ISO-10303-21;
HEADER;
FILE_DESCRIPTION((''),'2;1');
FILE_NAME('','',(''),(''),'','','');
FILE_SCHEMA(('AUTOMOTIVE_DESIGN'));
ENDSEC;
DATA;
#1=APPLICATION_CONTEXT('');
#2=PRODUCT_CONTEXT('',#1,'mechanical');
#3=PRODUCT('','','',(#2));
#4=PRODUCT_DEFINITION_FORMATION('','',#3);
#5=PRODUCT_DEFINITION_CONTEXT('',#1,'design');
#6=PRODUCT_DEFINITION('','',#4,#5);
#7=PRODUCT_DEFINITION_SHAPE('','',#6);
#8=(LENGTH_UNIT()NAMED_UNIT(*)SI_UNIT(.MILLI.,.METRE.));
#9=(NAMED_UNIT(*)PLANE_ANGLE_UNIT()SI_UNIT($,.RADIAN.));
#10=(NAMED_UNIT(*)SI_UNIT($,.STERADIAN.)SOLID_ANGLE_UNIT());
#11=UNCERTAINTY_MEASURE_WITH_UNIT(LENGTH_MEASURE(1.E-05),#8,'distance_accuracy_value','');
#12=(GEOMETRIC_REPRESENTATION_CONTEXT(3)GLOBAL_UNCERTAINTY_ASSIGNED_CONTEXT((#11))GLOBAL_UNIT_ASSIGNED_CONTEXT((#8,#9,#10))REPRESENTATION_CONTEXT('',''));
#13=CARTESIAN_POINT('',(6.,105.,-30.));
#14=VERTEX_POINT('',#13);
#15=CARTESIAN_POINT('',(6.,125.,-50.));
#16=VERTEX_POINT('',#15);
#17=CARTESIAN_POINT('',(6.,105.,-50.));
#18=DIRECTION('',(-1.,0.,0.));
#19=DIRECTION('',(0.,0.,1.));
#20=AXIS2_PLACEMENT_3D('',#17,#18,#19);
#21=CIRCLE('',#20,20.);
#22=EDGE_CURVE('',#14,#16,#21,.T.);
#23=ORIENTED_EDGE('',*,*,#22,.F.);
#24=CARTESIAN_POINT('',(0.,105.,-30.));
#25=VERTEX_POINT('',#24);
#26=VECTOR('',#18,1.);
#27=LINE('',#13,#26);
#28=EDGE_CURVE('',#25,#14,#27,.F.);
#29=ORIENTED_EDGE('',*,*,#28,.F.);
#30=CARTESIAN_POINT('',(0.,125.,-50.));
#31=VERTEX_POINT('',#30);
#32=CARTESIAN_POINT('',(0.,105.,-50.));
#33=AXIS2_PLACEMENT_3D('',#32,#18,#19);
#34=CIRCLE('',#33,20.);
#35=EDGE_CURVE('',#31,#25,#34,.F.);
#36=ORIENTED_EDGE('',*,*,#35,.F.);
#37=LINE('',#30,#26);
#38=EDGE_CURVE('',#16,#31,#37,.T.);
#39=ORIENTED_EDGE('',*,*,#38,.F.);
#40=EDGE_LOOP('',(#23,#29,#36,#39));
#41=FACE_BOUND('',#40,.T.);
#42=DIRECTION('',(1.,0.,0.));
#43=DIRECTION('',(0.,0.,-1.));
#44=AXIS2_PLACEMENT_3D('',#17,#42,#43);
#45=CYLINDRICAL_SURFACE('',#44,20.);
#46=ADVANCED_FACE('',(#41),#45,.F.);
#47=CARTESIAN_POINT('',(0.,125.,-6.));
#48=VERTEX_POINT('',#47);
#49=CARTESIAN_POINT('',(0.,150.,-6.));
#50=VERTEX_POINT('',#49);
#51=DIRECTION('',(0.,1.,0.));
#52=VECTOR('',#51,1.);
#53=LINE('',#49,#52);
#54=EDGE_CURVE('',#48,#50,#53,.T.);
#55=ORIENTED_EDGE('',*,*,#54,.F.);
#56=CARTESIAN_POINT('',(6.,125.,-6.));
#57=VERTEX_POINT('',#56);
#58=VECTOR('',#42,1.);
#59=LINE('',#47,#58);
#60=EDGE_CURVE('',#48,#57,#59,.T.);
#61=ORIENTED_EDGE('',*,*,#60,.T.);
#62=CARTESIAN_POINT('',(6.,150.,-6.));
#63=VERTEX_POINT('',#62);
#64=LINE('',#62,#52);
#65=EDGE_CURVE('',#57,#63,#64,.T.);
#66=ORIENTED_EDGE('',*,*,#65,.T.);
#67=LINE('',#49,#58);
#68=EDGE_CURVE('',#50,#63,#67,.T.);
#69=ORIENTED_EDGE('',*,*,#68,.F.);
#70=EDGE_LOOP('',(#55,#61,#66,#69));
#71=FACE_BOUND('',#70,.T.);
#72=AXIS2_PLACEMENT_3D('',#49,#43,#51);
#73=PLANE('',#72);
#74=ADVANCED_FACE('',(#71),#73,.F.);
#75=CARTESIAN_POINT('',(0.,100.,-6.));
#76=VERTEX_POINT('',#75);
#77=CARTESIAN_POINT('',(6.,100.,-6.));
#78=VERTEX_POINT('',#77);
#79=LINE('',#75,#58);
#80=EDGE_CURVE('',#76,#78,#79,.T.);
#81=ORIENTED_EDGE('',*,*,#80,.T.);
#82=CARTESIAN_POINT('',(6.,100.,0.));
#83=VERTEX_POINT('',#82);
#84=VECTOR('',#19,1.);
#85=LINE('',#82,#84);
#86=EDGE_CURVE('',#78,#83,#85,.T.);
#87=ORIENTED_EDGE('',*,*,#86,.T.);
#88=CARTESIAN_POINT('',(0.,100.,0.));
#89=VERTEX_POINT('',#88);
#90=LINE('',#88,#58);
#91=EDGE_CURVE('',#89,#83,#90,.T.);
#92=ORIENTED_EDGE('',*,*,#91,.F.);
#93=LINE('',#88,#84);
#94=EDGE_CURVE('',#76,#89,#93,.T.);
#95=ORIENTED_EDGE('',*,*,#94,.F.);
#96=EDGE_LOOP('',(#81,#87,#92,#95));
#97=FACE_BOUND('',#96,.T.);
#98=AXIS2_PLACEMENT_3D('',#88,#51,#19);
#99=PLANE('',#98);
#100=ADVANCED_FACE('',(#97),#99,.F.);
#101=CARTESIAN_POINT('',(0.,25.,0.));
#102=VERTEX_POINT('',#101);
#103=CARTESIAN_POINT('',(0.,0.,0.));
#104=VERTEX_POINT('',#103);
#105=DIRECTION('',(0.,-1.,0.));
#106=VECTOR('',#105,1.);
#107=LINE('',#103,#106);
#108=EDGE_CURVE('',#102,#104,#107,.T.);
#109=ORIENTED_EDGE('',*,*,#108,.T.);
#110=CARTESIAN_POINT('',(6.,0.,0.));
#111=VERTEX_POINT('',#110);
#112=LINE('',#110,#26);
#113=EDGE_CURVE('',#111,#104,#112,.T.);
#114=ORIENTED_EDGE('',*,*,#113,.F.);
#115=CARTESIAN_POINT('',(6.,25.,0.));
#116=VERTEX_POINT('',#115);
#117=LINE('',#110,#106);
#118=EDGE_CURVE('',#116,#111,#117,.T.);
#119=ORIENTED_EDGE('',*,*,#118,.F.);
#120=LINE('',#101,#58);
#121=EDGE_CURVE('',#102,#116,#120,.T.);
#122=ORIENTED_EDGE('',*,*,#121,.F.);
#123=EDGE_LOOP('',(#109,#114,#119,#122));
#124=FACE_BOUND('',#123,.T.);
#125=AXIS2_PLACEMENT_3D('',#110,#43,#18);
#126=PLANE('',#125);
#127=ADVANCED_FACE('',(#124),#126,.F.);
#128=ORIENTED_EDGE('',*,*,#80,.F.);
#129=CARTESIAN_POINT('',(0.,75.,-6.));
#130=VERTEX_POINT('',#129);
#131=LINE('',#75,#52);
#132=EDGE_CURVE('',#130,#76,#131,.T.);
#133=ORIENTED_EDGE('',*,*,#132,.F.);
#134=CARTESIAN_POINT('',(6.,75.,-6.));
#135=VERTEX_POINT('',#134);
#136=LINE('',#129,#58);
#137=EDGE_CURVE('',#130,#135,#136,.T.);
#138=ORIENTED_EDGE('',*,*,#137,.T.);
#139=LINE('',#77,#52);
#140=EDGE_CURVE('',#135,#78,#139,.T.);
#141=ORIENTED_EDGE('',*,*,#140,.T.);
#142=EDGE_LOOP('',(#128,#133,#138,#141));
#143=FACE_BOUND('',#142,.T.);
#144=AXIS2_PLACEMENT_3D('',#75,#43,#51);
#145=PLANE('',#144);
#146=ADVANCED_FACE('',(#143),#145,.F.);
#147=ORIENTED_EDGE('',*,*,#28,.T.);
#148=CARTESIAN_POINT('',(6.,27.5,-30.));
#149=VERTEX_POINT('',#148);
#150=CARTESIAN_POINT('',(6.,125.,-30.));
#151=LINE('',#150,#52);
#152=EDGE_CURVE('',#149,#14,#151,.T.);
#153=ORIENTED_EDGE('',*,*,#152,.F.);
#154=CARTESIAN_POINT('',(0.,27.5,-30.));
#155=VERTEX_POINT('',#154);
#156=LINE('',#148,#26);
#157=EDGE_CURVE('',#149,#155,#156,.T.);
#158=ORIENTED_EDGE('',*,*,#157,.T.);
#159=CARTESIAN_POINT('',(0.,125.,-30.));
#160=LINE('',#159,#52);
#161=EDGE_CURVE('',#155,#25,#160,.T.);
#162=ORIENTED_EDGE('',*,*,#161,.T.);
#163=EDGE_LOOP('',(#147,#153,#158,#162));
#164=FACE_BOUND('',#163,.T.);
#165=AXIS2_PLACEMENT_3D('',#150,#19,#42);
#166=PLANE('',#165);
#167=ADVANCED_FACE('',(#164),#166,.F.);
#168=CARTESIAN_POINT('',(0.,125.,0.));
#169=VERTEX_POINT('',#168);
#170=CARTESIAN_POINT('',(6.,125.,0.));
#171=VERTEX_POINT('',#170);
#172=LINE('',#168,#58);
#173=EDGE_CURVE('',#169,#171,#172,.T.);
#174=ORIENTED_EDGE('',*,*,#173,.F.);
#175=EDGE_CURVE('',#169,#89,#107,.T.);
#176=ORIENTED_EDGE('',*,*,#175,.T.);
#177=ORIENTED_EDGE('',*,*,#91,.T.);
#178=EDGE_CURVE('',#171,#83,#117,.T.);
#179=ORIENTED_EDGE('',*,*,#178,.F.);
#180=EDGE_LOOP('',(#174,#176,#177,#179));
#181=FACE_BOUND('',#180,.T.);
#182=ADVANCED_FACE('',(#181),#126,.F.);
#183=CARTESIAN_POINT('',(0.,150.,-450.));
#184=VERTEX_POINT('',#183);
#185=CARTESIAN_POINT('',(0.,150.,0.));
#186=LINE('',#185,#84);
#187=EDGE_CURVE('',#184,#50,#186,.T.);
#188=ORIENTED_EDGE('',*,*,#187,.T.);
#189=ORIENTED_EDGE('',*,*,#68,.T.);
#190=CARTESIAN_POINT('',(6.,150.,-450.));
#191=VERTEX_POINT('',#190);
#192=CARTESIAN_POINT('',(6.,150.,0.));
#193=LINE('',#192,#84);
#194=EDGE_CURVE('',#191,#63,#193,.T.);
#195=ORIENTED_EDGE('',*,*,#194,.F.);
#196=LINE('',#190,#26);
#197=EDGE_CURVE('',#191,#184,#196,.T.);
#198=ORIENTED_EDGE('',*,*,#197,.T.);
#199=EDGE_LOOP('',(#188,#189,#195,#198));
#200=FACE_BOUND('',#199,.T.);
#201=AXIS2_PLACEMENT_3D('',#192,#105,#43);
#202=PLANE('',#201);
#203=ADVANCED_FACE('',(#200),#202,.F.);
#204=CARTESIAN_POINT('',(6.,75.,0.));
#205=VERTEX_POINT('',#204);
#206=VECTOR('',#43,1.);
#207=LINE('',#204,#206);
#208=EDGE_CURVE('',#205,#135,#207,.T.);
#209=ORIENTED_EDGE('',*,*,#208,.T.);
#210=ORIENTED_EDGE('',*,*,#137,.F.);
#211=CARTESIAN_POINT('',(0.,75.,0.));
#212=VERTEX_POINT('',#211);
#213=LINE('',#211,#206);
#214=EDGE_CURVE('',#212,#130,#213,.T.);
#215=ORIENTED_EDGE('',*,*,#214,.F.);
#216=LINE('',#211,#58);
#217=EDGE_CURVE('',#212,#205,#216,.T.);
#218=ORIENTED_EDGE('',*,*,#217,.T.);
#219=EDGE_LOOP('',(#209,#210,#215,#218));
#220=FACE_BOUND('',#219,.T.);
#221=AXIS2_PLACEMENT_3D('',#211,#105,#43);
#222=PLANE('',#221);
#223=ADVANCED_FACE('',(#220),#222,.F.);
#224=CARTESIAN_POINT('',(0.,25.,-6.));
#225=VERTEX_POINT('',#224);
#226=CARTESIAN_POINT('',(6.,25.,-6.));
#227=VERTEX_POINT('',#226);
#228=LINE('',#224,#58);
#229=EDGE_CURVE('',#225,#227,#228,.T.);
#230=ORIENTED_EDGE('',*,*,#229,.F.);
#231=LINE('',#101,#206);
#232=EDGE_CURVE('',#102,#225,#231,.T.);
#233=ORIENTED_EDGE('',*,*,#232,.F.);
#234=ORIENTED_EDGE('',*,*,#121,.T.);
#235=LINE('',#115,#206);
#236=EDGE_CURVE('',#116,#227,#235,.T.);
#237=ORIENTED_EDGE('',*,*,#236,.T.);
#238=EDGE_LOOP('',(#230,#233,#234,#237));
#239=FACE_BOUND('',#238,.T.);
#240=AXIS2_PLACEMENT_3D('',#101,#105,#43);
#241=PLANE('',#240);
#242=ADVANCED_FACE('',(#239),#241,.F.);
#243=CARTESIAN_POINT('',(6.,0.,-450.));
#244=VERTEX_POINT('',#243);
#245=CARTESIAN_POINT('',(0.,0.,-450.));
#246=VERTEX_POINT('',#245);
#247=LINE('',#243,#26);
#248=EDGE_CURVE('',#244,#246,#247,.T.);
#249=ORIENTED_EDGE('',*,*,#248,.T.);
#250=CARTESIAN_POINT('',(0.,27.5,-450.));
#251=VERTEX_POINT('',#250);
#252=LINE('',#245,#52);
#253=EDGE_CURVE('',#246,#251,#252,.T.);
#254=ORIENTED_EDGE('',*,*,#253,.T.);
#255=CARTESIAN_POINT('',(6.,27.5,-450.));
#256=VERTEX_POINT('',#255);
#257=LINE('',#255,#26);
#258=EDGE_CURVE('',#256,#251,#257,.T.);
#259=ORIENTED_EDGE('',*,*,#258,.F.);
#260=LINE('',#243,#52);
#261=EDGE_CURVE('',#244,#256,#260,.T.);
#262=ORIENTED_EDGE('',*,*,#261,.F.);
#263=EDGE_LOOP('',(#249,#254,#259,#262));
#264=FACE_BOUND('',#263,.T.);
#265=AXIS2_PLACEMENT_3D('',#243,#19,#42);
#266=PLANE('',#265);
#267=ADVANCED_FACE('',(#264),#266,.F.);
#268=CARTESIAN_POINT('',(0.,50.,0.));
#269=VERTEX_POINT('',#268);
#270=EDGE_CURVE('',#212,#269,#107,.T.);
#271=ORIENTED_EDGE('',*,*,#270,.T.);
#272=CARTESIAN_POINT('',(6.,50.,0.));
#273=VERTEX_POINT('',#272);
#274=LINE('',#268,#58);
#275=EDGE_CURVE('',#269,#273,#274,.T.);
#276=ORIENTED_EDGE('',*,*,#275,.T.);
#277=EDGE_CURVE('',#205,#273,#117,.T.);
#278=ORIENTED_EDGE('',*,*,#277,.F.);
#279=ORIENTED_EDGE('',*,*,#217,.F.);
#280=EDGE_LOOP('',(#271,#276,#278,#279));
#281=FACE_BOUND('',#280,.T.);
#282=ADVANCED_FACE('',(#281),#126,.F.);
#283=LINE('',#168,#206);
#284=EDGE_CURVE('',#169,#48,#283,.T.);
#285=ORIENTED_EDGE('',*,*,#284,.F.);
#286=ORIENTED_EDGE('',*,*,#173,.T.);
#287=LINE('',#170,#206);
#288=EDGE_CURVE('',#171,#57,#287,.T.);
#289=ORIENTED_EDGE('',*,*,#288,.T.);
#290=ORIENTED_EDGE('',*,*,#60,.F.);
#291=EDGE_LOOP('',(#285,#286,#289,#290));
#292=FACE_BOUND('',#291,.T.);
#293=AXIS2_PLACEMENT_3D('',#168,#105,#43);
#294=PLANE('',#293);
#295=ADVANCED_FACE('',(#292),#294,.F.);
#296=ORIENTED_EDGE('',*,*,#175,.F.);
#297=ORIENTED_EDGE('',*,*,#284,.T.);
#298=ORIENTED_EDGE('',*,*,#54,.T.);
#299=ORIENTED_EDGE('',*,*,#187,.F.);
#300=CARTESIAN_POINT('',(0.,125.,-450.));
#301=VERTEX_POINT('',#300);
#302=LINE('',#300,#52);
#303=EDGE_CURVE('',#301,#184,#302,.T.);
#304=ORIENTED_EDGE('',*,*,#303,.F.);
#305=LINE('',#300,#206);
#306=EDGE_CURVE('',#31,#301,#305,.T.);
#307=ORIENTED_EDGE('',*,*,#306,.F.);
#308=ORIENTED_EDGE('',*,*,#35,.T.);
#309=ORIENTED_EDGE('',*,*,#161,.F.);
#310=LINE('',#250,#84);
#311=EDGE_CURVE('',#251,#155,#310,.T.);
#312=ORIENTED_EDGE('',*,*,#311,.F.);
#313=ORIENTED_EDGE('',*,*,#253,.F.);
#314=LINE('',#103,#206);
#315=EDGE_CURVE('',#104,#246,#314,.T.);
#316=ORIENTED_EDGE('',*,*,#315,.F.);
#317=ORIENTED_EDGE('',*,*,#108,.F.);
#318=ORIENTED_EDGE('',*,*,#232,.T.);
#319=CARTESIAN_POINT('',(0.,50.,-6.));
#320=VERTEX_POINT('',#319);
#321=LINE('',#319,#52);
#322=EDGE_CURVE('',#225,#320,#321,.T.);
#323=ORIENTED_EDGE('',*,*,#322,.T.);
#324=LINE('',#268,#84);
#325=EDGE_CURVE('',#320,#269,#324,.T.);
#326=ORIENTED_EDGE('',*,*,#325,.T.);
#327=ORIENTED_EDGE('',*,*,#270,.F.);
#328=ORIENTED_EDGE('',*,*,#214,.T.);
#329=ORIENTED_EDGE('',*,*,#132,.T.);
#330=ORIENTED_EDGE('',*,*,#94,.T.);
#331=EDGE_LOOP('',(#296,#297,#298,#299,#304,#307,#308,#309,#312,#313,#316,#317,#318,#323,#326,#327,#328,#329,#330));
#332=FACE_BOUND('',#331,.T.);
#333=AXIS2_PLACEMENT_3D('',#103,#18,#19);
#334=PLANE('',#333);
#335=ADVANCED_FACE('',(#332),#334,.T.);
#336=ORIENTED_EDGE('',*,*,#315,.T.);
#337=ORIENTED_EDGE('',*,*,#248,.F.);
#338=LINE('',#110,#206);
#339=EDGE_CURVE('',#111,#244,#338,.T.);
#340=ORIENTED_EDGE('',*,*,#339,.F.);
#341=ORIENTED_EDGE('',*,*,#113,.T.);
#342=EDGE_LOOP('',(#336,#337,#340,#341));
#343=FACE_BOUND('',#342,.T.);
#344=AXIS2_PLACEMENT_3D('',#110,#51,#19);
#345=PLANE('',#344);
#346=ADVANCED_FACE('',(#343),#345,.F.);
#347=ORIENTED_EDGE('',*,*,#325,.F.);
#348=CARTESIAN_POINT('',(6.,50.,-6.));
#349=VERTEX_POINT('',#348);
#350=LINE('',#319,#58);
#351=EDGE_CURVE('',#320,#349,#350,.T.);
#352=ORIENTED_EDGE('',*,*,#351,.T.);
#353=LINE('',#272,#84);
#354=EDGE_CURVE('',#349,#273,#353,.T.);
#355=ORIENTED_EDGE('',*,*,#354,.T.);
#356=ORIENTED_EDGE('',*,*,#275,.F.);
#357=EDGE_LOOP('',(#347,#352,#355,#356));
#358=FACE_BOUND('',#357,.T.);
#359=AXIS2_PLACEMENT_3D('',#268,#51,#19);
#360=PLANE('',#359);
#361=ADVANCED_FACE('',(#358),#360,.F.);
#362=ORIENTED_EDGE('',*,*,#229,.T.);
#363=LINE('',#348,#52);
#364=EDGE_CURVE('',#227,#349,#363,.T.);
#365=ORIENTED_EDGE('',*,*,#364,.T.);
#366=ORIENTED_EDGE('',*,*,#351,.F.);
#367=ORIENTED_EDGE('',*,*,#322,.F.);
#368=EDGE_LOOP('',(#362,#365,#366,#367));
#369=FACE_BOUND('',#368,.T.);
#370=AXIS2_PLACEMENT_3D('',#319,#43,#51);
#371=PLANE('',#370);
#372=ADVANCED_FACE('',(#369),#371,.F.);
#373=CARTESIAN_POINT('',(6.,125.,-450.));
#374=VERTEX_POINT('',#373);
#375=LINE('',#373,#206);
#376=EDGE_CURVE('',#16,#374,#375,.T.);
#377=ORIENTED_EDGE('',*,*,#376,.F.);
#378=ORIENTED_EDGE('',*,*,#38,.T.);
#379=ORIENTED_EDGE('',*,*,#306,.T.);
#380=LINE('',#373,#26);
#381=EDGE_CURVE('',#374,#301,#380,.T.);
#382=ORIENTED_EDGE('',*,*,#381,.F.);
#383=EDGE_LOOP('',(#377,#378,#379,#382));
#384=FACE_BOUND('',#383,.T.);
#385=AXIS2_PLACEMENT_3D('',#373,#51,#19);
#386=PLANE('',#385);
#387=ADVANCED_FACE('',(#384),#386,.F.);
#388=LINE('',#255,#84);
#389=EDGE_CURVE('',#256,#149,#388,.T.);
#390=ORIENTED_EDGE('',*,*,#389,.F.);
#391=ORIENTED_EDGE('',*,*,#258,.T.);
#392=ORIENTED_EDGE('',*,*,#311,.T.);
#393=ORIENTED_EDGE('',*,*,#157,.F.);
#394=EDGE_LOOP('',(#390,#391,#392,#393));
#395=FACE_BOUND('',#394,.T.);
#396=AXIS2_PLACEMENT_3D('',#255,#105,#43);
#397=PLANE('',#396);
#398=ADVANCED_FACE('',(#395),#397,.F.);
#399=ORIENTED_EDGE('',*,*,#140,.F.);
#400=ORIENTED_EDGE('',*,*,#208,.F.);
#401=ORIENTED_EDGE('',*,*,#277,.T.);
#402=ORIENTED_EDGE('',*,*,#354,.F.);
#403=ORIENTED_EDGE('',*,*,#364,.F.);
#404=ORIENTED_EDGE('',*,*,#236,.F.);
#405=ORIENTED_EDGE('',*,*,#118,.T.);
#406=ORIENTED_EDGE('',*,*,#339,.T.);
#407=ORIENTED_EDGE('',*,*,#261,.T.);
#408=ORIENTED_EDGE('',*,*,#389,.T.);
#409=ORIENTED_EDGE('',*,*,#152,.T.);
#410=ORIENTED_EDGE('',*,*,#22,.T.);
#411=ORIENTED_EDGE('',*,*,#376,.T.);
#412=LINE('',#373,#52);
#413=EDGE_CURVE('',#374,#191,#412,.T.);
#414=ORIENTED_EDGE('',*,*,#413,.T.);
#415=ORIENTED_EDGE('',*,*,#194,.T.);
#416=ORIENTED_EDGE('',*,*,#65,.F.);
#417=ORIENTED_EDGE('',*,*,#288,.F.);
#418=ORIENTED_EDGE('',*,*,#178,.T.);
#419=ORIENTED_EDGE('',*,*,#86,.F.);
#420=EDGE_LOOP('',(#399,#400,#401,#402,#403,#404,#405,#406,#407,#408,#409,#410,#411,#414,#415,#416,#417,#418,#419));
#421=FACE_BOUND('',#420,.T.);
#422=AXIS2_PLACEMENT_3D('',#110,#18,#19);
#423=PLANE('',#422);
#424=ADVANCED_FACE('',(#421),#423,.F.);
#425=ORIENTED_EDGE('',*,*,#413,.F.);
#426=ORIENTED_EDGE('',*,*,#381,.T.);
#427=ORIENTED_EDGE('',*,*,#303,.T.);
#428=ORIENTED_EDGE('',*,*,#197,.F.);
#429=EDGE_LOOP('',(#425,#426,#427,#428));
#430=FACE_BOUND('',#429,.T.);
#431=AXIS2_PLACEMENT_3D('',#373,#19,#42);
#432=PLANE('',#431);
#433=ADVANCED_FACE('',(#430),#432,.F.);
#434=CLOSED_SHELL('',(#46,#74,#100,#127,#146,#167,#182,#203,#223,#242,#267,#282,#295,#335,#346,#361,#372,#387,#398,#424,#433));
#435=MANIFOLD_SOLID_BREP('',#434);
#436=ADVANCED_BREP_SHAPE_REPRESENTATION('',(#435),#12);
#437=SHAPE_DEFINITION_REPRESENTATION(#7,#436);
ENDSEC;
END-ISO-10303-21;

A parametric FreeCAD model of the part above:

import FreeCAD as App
import Part
import Sketcher
from FreeCAD import Vector


def edges_at(feature, points):
    """Names of the edges that pass closest to the given points."""
    edges = feature.Shape.Edges
    near = lambda p: min(range(len(edges)), key=lambda i: edges[i].distToShape(Part.Vertex(*p))[0])
    return sorted({f"Edge{near(p) + 1}" for p in points})


def add_polygon(sketch, points):
    """Adds a closed chain of lines whose ends are joined by coincident constraints."""
    first, n = sketch.GeometryCount, len(points)
    for a, b in zip(points, points[1:] + points[:1]):
        sketch.addGeometry(Part.LineSegment(App.Vector(*a, 0), App.Vector(*b, 0)), False)
    for i in range(n):
        sketch.addConstraint(Sketcher.Constraint("Coincident", first + i, 2, first + (i + 1) % n, 1))

doc = App.newDocument("Part")
body = doc.addObject("PartDesign::Body", "Body")

# Sketch on YZ plane
sketch1 = body.newObject("Sketcher::SketchObject", "Sketch")
sketch1.AttachmentSupport = (doc.getObject("YZ_Plane"), [""])
sketch1.MapMode = "FlatFace"
add_polygon(sketch1, [(125, -450), (150, -450), (150, 0), (0, 0), (0, -450), (28, -450), (28, -30), (125, -30)])  # lines 0-7
sketch1.addConstraint([
    Sketcher.Constraint("Horizontal", 0),
    Sketcher.Constraint("Vertical", 1),
    Sketcher.Constraint("Horizontal", 2),
    Sketcher.Constraint("Vertical", 3),
    Sketcher.Constraint("Horizontal", 4),
    Sketcher.Constraint("Vertical", 5),
    Sketcher.Constraint("Horizontal", 6),
    Sketcher.Constraint("Vertical", 7),
    Sketcher.Constraint("Coincident", 2, 2, -1, 1),
    Sketcher.Constraint("Horizontal", 0, 2, 3, 2),
    Sketcher.Constraint("DistanceX", 0, 1, 0, 2, 25.0),
    Sketcher.Constraint("DistanceX", 2, 2, 2, 1, 150.0),
    Sketcher.Constraint("DistanceY", 1, 1, 1, 2, 450.0),
    Sketcher.Constraint("DistanceY", 5, 1, 5, 2, 420.0),
    Sketcher.Constraint("DistanceX", 4, 1, 4, 2, 27.5),
])
pad1 = body.newObject("PartDesign::Pad", "Pad")
pad1.Profile = sketch1
pad1.Length = 6

# Sketch on YZ plane
sketch2 = body.newObject("Sketcher::SketchObject", "Sketch001")
sketch2.AttachmentSupport = (doc.getObject("YZ_Plane"), [""])
sketch2.MapMode = "FlatFace"
sketch2.AttachmentOffset = App.Placement(Vector(0, 0, 6), App.Rotation())
add_polygon(sketch2, [(150, 0), (125, 0), (125, -6), (150, -6)])  # lines 0-3
sketch2.addConstraint([
    Sketcher.Constraint("Horizontal", 0),
    Sketcher.Constraint("Vertical", 1),
    Sketcher.Constraint("Horizontal", 2),
    Sketcher.Constraint("Vertical", 3),
    Sketcher.Constraint("PointOnObject", 0, 2, -1),
    Sketcher.Constraint("DistanceX", 0, 2, 0, 1, 25.0),
    Sketcher.Constraint("DistanceY", 1, 2, 1, 1, 6.0),
    Sketcher.Constraint("DistanceX", -1, 1, 0, 2, 125.0),
])
pocket1 = body.newObject("PartDesign::Pocket", "Pocket")
pocket1.Profile = sketch2
pocket1.Length = 6
doc.recompute()

linearpattern = body.newObject("PartDesign::LinearPattern", "LinearPattern")
linearpattern.Originals = [pocket1]
linearpattern.Direction = (doc.getObject("Y_Axis"), [""])
linearpattern.Mode = "offset"
linearpattern.Offset = 50
linearpattern.Occurrences = 3
linearpattern.Reversed = True
body.Tip = linearpattern
doc.recompute()

fillet = body.newObject("PartDesign::Fillet", "Fillet")
fillet.Base = (linearpattern, edges_at(linearpattern, [(3, 125, -30)]))
fillet.Radius = 20

doc.recompute()
